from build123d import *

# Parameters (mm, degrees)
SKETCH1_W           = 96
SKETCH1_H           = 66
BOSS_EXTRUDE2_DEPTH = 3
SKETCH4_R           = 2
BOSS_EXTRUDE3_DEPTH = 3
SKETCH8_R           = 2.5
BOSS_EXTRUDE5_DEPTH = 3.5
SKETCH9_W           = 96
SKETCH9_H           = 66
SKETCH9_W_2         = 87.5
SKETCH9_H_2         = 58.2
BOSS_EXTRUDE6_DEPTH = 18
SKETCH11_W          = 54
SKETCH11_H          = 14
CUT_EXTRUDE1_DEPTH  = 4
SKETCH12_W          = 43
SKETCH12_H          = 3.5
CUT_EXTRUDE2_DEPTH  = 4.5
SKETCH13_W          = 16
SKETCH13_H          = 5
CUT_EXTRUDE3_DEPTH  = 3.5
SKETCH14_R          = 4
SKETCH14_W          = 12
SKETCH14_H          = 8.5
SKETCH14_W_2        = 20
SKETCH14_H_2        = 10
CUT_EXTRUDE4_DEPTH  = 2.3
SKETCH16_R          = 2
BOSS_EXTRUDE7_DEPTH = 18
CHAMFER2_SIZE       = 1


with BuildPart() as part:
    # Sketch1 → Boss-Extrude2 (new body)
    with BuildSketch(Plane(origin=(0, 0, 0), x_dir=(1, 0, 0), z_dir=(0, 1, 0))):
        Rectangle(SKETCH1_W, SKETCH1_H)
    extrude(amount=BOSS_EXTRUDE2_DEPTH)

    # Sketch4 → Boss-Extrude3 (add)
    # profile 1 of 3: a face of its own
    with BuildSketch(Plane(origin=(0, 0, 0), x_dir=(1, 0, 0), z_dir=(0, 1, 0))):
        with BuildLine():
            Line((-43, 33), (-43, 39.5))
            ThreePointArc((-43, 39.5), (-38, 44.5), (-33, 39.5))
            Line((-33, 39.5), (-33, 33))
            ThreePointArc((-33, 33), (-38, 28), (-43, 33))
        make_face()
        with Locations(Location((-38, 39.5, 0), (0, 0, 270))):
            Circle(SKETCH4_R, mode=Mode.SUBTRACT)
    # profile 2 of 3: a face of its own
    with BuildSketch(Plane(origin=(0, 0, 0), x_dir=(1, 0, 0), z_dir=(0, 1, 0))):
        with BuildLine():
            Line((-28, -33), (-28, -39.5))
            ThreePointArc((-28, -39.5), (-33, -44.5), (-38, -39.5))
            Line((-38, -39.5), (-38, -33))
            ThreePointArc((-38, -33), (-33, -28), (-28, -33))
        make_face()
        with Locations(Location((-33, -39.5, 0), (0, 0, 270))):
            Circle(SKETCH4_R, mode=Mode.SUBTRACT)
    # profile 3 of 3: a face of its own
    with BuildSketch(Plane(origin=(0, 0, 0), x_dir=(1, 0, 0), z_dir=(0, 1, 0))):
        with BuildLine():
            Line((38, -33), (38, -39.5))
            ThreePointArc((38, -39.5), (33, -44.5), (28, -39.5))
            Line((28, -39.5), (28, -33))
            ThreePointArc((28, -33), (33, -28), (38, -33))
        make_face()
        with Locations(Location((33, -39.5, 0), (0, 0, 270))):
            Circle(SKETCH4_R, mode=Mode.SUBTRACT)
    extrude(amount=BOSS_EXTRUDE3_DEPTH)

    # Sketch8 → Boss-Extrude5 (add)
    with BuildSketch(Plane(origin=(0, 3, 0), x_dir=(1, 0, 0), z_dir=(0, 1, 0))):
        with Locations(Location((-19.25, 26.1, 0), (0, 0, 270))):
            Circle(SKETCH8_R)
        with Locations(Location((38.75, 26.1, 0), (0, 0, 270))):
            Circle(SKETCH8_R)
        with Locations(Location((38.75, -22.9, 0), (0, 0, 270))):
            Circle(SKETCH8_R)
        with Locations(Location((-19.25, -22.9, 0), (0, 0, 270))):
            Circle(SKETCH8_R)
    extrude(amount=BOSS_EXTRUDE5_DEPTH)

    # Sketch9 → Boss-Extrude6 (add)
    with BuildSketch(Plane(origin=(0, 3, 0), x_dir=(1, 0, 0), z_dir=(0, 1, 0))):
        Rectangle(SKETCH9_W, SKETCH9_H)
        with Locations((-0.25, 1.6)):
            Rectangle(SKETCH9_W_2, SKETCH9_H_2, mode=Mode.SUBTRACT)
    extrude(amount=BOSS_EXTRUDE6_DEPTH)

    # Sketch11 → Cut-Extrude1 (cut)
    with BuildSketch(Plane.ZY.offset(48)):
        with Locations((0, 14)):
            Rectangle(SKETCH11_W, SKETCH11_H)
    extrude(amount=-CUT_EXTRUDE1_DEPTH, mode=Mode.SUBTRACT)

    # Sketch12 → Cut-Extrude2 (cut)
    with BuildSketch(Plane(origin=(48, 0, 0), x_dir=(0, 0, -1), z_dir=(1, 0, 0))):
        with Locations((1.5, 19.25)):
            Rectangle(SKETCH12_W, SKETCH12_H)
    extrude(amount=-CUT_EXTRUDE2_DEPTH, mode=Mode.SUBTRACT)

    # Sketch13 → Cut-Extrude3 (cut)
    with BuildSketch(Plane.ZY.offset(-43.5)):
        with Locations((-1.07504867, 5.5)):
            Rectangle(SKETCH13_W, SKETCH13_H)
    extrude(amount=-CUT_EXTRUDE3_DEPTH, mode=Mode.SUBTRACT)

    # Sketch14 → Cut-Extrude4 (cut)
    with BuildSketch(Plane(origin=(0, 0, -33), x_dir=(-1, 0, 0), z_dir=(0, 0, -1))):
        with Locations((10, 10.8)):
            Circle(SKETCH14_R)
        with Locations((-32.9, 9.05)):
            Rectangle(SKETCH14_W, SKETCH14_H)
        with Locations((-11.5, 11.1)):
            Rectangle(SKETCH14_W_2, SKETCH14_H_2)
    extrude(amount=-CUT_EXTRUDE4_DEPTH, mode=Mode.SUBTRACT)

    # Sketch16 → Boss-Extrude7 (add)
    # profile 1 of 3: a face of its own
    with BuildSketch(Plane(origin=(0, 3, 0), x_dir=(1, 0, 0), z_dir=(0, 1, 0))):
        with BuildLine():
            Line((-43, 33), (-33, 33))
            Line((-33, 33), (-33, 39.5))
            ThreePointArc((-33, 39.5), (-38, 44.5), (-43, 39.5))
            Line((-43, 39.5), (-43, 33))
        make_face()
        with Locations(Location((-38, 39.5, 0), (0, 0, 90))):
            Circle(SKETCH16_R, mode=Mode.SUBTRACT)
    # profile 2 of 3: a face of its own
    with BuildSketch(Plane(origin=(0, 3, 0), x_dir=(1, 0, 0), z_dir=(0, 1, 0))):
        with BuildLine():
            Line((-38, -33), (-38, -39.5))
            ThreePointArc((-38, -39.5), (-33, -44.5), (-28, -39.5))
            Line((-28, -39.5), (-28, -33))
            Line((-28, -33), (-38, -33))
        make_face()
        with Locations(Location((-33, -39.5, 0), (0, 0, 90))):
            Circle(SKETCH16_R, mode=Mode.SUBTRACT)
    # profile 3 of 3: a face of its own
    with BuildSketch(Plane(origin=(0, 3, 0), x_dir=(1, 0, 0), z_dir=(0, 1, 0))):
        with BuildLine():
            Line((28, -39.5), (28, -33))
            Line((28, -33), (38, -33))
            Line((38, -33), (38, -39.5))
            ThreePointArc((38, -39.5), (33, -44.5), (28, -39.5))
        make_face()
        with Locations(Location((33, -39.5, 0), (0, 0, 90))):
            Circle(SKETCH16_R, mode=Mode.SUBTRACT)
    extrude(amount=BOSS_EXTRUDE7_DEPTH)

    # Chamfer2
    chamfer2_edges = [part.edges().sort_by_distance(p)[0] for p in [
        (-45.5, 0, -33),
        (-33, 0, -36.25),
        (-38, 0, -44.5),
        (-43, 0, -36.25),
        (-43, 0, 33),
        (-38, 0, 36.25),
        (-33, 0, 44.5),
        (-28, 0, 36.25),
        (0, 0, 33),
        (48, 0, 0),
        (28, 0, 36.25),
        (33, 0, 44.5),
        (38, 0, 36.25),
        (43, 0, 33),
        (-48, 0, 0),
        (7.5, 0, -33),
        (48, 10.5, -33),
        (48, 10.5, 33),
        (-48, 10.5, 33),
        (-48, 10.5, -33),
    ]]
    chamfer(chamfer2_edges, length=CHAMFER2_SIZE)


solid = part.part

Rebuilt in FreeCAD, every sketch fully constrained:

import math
import FreeCAD as App
import Part
import Sketcher
from FreeCAD import Vector
Q = App.Units.Quantity


def edges_at(feature, points):
    """Names of the edges that pass closest to the given points."""
    edges = feature.Shape.Edges
    near = lambda p: min(range(len(edges)), key=lambda i: edges[i].distToShape(Part.Vertex(*p))[0])
    return sorted({f"Edge{near(p) + 1}" for p in points})

doc = App.newDocument("Part")
body = doc.addObject("PartDesign::Body", "Body")

sketch1 = body.newObject("Sketcher::SketchObject", "Sketch")
sketch1.AttachmentSupport = (doc.getObject("XZ_Plane"), [""])
sketch1.MapMode = "FlatFace"
sketch1.addGeometry([
    Part.LineSegment(Vector(-48, -33, 0), Vector(-48, 33, 0)),
    Part.LineSegment(Vector(-48, 33, 0), Vector(48, 33, 0)),
    Part.LineSegment(Vector(48, 33, 0), Vector(48, -33, 0)),
    Part.LineSegment(Vector(48, -33, 0), Vector(-48, -33, 0)),
], False)
sketch1.addConstraint([
    Sketcher.Constraint("Coincident", 0, 2, 1, 1),
    Sketcher.Constraint("Coincident", 1, 2, 2, 1),
    Sketcher.Constraint("Coincident", 2, 2, 3, 1),
    Sketcher.Constraint("Coincident", 3, 2, 0, 1),
    Sketcher.Constraint("Vertical", 0),
    Sketcher.Constraint("Horizontal", 1),
    Sketcher.Constraint("Vertical", 2),
    Sketcher.Constraint("Horizontal", 3),
    Sketcher.Constraint("Symmetric", 0, 2, 2, 2, -1, 1),
    Sketcher.Constraint("DistanceX", 1, 1, 1, 2, Q("96 mm")),
    Sketcher.Constraint("DistanceY", 0, 1, 0, 2, Q("66 mm")),
])
pad1 = body.newObject("PartDesign::Pad", "Pad")
pad1.Profile = sketch1
pad1.Length = 3
pad1.Reversed = True

sketch2 = body.newObject("Sketcher::SketchObject", "Sketch001")
sketch2.AttachmentSupport = (doc.getObject("XZ_Plane"), [""])
sketch2.MapMode = "FlatFace"
sketch2.addGeometry([
    Part.LineSegment(Vector(-43, -39.5, 0), Vector(-43, -33, 0)),
    Part.ArcOfCircle(Part.Circle(Vector(-38, -33, 0), Vector(0, 0, 1), 5), math.radians(0), math.radians(180)),
    Part.LineSegment(Vector(-33, -33, 0), Vector(-33, -39.5, 0)),
    Part.ArcOfCircle(Part.Circle(Vector(-38, -39.5, 0), Vector(0, 0, 1), 5), math.radians(180), math.radians(360)),
    Part.Circle(Vector(-38, -39.5, 0), Vector(0, 0, 1), 2),
    Part.LineSegment(Vector(-28, 39.5, 0), Vector(-28, 33, 0)),
    Part.ArcOfCircle(Part.Circle(Vector(-33, 33, 0), Vector(0, 0, 1), 5), math.radians(180), math.radians(360)),
    Part.LineSegment(Vector(-38, 33, 0), Vector(-38, 39.5, 0)),
    Part.ArcOfCircle(Part.Circle(Vector(-33, 39.5, 0), Vector(0, 0, 1), 5), math.radians(0), math.radians(180)),
    Part.Circle(Vector(-33, 39.5, 0), Vector(0, 0, 1), 2),
    Part.LineSegment(Vector(38, 39.5, 0), Vector(38, 33, 0)),
    Part.ArcOfCircle(Part.Circle(Vector(33, 33, 0), Vector(0, 0, 1), 5), math.radians(180), math.radians(360)),
    Part.LineSegment(Vector(28, 33, 0), Vector(28, 39.5, 0)),
    Part.ArcOfCircle(Part.Circle(Vector(33, 39.5, 0), Vector(0, 0, 1), 5), math.radians(0), math.radians(180)),
    Part.Circle(Vector(33, 39.5, 0), Vector(0, 0, 1), 2),
], False)
sketch2.addConstraint([
    Sketcher.Constraint("Tangent", 0, 2, 1, 2),
    Sketcher.Constraint("Tangent", 1, 1, 2, 1),
    Sketcher.Constraint("Tangent", 2, 2, 3, 2),
    Sketcher.Constraint("Tangent", 3, 1, 0, 1),
    Sketcher.Constraint("Tangent", 5, 2, 6, 2),
    Sketcher.Constraint("Tangent", 6, 1, 7, 1),
    Sketcher.Constraint("Tangent", 7, 2, 8, 2),
    Sketcher.Constraint("Tangent", 8, 1, 5, 1),
    Sketcher.Constraint("Tangent", 10, 2, 11, 2),
    Sketcher.Constraint("Tangent", 11, 1, 12, 1),
    Sketcher.Constraint("Tangent", 12, 2, 13, 2),
    Sketcher.Constraint("Tangent", 13, 1, 10, 1),
    Sketcher.Constraint("Vertical", 0),
    Sketcher.Constraint("Vertical", 2),
    Sketcher.Constraint("Vertical", 5),
    Sketcher.Constraint("Vertical", 7),
    Sketcher.Constraint("Vertical", 10),
    Sketcher.Constraint("Vertical", 12),
    Sketcher.Constraint("Coincident", 4, 3, 3, 3),
    Sketcher.Constraint("Coincident", 9, 3, 8, 3),
    Sketcher.Constraint("Coincident", 14, 3, 13, 3),
    Sketcher.Constraint("Equal", 3, 6),
    Sketcher.Constraint("Equal", 4, 9),
    Sketcher.Constraint("Equal", 8, 11),
    Sketcher.Constraint("Equal", 9, 14),
    Sketcher.Constraint("Symmetric", 6, 3, 11, 3, -2),
    Sketcher.Constraint("Horizontal", 9, 3, 13, 3),
    Sketcher.Constraint("Vertical", 9, 3, 1, 1),
    Sketcher.Constraint("Equal", 2, 5),
    Sketcher.Constraint("Diameter", 4, Q("4 mm")),
    Sketcher.Constraint("Radius", 1, Q("5 mm")),
    Sketcher.Constraint("DistanceY", 0, 1, 0, 2, Q("6.5 mm")),
    Sketcher.Constraint("DistanceX", 1, 3, -1, 1, Q("38 mm")),
    Sketcher.Constraint("DistanceY", 1, 3, -1, 1, Q("33 mm")),
    Sketcher.Constraint("DistanceY", -1, 1, 6, 3, Q("33 mm")),
])
pad2 = body.newObject("PartDesign::Pad", "Pad001")
pad2.Profile = sketch2
pad2.Length = 3
pad2.Reversed = True

sketch3 = body.newObject("Sketcher::SketchObject", "Sketch002")
sketch3.AttachmentSupport = (doc.getObject("XZ_Plane"), [""])
sketch3.MapMode = "FlatFace"
sketch3.AttachmentOffset = App.Placement(Vector(0, 0, -3), App.Rotation())
sketch3.addGeometry([
    Part.Circle(Vector(-19.25, -26.1, 0), Vector(0, 0, 1), 2.5),
    Part.Circle(Vector(38.75, -26.1, 0), Vector(0, 0, 1), 2.5),
    Part.Circle(Vector(38.75, 22.9, 0), Vector(0, 0, 1), 2.5),
    Part.Circle(Vector(-19.25, 22.9, 0), Vector(0, 0, 1), 2.5),
], False)
sketch3.addConstraint([
    Sketcher.Constraint("Equal", 0, 1),
    Sketcher.Constraint("Equal", 1, 2),
    Sketcher.Constraint("Equal", 2, 3),
    Sketcher.Constraint("Horizontal", 0, 3, 1, 3),
    Sketcher.Constraint("Horizontal", 2, 3, 3, 3),
    Sketcher.Constraint("Vertical", 1, 3, 2, 3),
    Sketcher.Constraint("Vertical", 0, 3, 3, 3),
    Sketcher.Constraint("Diameter", 0, Q("5 mm")),
    Sketcher.Constraint("DistanceX", 0, 3, 1, 3, Q("58 mm")),
    Sketcher.Constraint("DistanceY", 1, 3, 2, 3, Q("49 mm")),
    Sketcher.Constraint("DistanceY", 0, 3, -1, 1, Q("26.1 mm")),
    Sketcher.Constraint("DistanceX", 0, 3, -1, 1, Q("19.25 mm")),
])
pad3 = body.newObject("PartDesign::Pad", "Pad002")
pad3.Profile = sketch3
pad3.Length = 3.5
pad3.Reversed = True

sketch4 = body.newObject("Sketcher::SketchObject", "Sketch003")
sketch4.AttachmentSupport = (doc.getObject("XZ_Plane"), [""])
sketch4.MapMode = "FlatFace"
sketch4.AttachmentOffset = App.Placement(Vector(0, 0, -3), App.Rotation())
sketch4.addGeometry([
    Part.LineSegment(Vector(-48, -33, 0), Vector(-48, 33, 0)),
    Part.LineSegment(Vector(-48, 33, 0), Vector(48, 33, 0)),
    Part.LineSegment(Vector(48, 33, 0), Vector(48, -33, 0)),
    Part.LineSegment(Vector(48, -33, 0), Vector(-48, -33, 0)),
    Part.LineSegment(Vector(43.5, 27.5, 0), Vector(-44, 27.5, 0)),
    Part.LineSegment(Vector(-44, 27.5, 0), Vector(-44, -30.7, 0)),
    Part.LineSegment(Vector(-44, -30.7, 0), Vector(43.5, -30.7, 0)),
    Part.LineSegment(Vector(43.5, -30.7, 0), Vector(43.5, 27.5, 0)),
], False)
sketch4.addConstraint([
    Sketcher.Constraint("Coincident", 0, 2, 1, 1),
    Sketcher.Constraint("Coincident", 1, 2, 2, 1),
    Sketcher.Constraint("Coincident", 2, 2, 3, 1),
    Sketcher.Constraint("Coincident", 3, 2, 0, 1),
    Sketcher.Constraint("Coincident", 4, 2, 5, 1),
    Sketcher.Constraint("Coincident", 5, 2, 6, 1),
    Sketcher.Constraint("Coincident", 6, 2, 7, 1),
    Sketcher.Constraint("Coincident", 7, 2, 4, 1),
    Sketcher.Constraint("Vertical", 0),
    Sketcher.Constraint("Horizontal", 1),
    Sketcher.Constraint("Vertical", 2),
    Sketcher.Constraint("Horizontal", 3),
    Sketcher.Constraint("Horizontal", 4),
    Sketcher.Constraint("Vertical", 5),
    Sketcher.Constraint("Horizontal", 6),
    Sketcher.Constraint("Vertical", 7),
    Sketcher.Constraint("Symmetric", 0, 2, 2, 2, -1, 1),
    Sketcher.Constraint("DistanceX", 1, 1, 1, 2, Q("96 mm")),
    Sketcher.Constraint("DistanceY", 0, 1, 0, 2, Q("66 mm")),
    Sketcher.Constraint("DistanceX", 4, 2, 4, 1, Q("87.5 mm")),
    Sketcher.Constraint("DistanceY", 5, 2, 5, 1, Q("58.2 mm")),
    Sketcher.Constraint("DistanceX", 4, 2, -1, 1, Q("44 mm")),
    Sketcher.Constraint("DistanceY", -1, 1, 4, 2, Q("27.5 mm")),
])
pad4 = body.newObject("PartDesign::Pad", "Pad003")
pad4.Profile = sketch4
pad4.Length = 18
pad4.Reversed = True

sketch5 = body.newObject("Sketcher::SketchObject", "Sketch004")
sketch5.AttachmentSupport = (doc.getObject("YZ_Plane"), [""])
sketch5.MapMode = "FlatFace"
sketch5.AttachmentOffset = App.Placement(Vector(0, 0, -48), App.Rotation())
sketch5.addGeometry([
    Part.LineSegment(Vector(21, -27, 0), Vector(7, -27, 0)),
    Part.LineSegment(Vector(7, -27, 0), Vector(7, 27, 0)),
    Part.LineSegment(Vector(7, 27, 0), Vector(21, 27, 0)),
    Part.LineSegment(Vector(21, 27, 0), Vector(21, -27, 0)),
], False)
sketch5.addConstraint([
    Sketcher.Constraint("Coincident", 0, 2, 1, 1),
    Sketcher.Constraint("Coincident", 1, 2, 2, 1),
    Sketcher.Constraint("Coincident", 2, 2, 3, 1),
    Sketcher.Constraint("Coincident", 3, 2, 0, 1),
    Sketcher.Constraint("Horizontal", 0),
    Sketcher.Constraint("Vertical", 1),
    Sketcher.Constraint("Horizontal", 2),
    Sketcher.Constraint("Vertical", 3),
    Sketcher.Constraint("DistanceX", 0, 2, 0, 1, Q("14 mm")),
    Sketcher.Constraint("DistanceY", 1, 1, 1, 2, Q("54 mm")),
    Sketcher.Constraint("DistanceX", -1, 1, 0, 2, Q("7 mm")),
    Sketcher.Constraint("DistanceY", 0, 2, -1, 1, Q("27 mm")),
])
pocket1 = body.newObject("PartDesign::Pocket", "Pocket")
pocket1.Profile = sketch5
pocket1.Length = 4
pocket1.Reversed = True

sketch6 = body.newObject("Sketcher::SketchObject", "Sketch005")
sketch6.AttachmentSupport = (doc.getObject("YZ_Plane"), [""])
sketch6.MapMode = "FlatFace"
sketch6.AttachmentOffset = App.Placement(Vector(0, 0, 48), App.Rotation())
sketch6.addGeometry([
    Part.LineSegment(Vector(21, 20, 0), Vector(17.5, 20, 0)),
    Part.LineSegment(Vector(17.5, 20, 0), Vector(17.5, -23, 0)),
    Part.LineSegment(Vector(17.5, -23, 0), Vector(21, -23, 0)),
    Part.LineSegment(Vector(21, -23, 0), Vector(21, 20, 0)),
], False)
sketch6.addConstraint([
    Sketcher.Constraint("Coincident", 0, 2, 1, 1),
    Sketcher.Constraint("Coincident", 1, 2, 2, 1),
    Sketcher.Constraint("Coincident", 2, 2, 3, 1),
    Sketcher.Constraint("Coincident", 3, 2, 0, 1),
    Sketcher.Constraint("Horizontal", 0),
    Sketcher.Constraint("Vertical", 1),
    Sketcher.Constraint("Horizontal", 2),
    Sketcher.Constraint("Vertical", 3),
    Sketcher.Constraint("DistanceY", 1, 2, 1, 1, Q("43 mm")),
    Sketcher.Constraint("DistanceX", 0, 2, 0, 1, Q("3.5 mm")),
    Sketcher.Constraint("DistanceY", -1, 1, 0, 2, Q("20 mm")),
    Sketcher.Constraint("DistanceX", -1, 1, 2, 2, Q("21 mm")),
])
pocket2 = body.newObject("PartDesign::Pocket", "Pocket001")
pocket2.Profile = sketch6
pocket2.Length = 4.5

sketch7 = body.newObject("Sketcher::SketchObject", "Sketch006")
sketch7.AttachmentSupport = (doc.getObject("YZ_Plane"), [""])
sketch7.MapMode = "FlatFace"
sketch7.AttachmentOffset = App.Placement(Vector(0, 0, 43.5), App.Rotation())
sketch7.addGeometry([
    Part.LineSegment(Vector(8, -9.075049, 0), Vector(3, -9.075049, 0)),
    Part.LineSegment(Vector(3, -9.075049, 0), Vector(3, 6.924951, 0)),
    Part.LineSegment(Vector(3, 6.924951, 0), Vector(8, 6.924951, 0)),
    Part.LineSegment(Vector(8, 6.924951, 0), Vector(8, -9.075049, 0)),
], False)
sketch7.addConstraint([
    Sketcher.Constraint("Coincident", 0, 2, 1, 1),
    Sketcher.Constraint("Coincident", 1, 2, 2, 1),
    Sketcher.Constraint("Coincident", 2, 2, 3, 1),
    Sketcher.Constraint("Coincident", 3, 2, 0, 1),
    Sketcher.Constraint("Horizontal", 0),
    Sketcher.Constraint("Vertical", 1),
    Sketcher.Constraint("Horizontal", 2),
    Sketcher.Constraint("Vertical", 3),
    Sketcher.Constraint("DistanceX", 0, 2, 0, 1, Q("5 mm")),
    Sketcher.Constraint("DistanceY", 1, 1, 1, 2, Q("16 mm")),
    Sketcher.Constraint("DistanceX", -1, 1, 0, 2, Q("3 mm")),
    Sketcher.Constraint("DistanceY", 0, 2, -1, 1, Q("9.075049 mm")),
])
pocket3 = body.newObject("PartDesign::Pocket", "Pocket002")
pocket3.Profile = sketch7
pocket3.Length = 3.5
pocket3.Reversed = True

sketch8 = body.newObject("Sketcher::SketchObject", "Sketch007")
sketch8.AttachmentSupport = (doc.getObject("XY_Plane"), [""])
sketch8.MapMode = "FlatFace"
sketch8.AttachmentOffset = App.Placement(Vector(0, 0, -33), App.Rotation())
sketch8.addGeometry([
    Part.Circle(Vector(-10, 10.8, 0), Vector(0, 0, 1), 4),
    Part.LineSegment(Vector(38.9, 13.3, 0), Vector(38.9, 4.8, 0)),
    Part.LineSegment(Vector(38.9, 4.8, 0), Vector(26.9, 4.8, 0)),
    Part.LineSegment(Vector(26.9, 4.8, 0), Vector(26.9, 13.3, 0)),
    Part.LineSegment(Vector(26.9, 13.3, 0), Vector(38.9, 13.3, 0)),
    Part.LineSegment(Vector(21.5, 16.1, 0), Vector(21.5, 6.1, 0)),
    Part.LineSegment(Vector(21.5, 6.1, 0), Vector(1.5, 6.1, 0)),
    Part.LineSegment(Vector(1.5, 6.1, 0), Vector(1.5, 16.1, 0)),
    Part.LineSegment(Vector(1.5, 16.1, 0), Vector(21.5, 16.1, 0)),
], False)
sketch8.addConstraint([
    Sketcher.Constraint("Coincident", 1, 2, 2, 1),
    Sketcher.Constraint("Coincident", 2, 2, 3, 1),
    Sketcher.Constraint("Coincident", 3, 2, 4, 1),
    Sketcher.Constraint("Coincident", 4, 2, 1, 1),
    Sketcher.Constraint("Coincident", 5, 2, 6, 1),
    Sketcher.Constraint("Coincident", 6, 2, 7, 1),
    Sketcher.Constraint("Coincident", 7, 2, 8, 1),
    Sketcher.Constraint("Coincident", 8, 2, 5, 1),
    Sketcher.Constraint("Vertical", 1),
    Sketcher.Constraint("Horizontal", 2),
    Sketcher.Constraint("Vertical", 3),
    Sketcher.Constraint("Horizontal", 4),
    Sketcher.Constraint("Vertical", 5),
    Sketcher.Constraint("Horizontal", 6),
    Sketcher.Constraint("Vertical", 7),
    Sketcher.Constraint("Horizontal", 8),
    Sketcher.Constraint("Diameter", 0, Q("8 mm")),
    Sketcher.Constraint("DistanceX", 2, 2, 2, 1, Q("12 mm")),
    Sketcher.Constraint("DistanceX", 6, 2, 6, 1, Q("20 mm")),
    Sketcher.Constraint("DistanceY", 5, 2, 5, 1, Q("10 mm")),
    Sketcher.Constraint("DistanceY", 1, 2, 1, 1, Q("8.5 mm")),
    Sketcher.Constraint("DistanceX", 0, 3, -1, 1, Q("10 mm")),
    Sketcher.Constraint("DistanceY", 1, 2, 0, 3, Q("6 mm")),
    Sketcher.Constraint("DistanceY", -1, 1, 0, 3, Q("10.8 mm")),
    Sketcher.Constraint("DistanceX", -1, 1, 1, 2, Q("38.9 mm")),
    Sketcher.Constraint("DistanceX", -1, 1, 5, 2, Q("21.5 mm")),
    Sketcher.Constraint("DistanceY", -1, 1, 5, 2, Q("6.1 mm")),
])
pocket4 = body.newObject("PartDesign::Pocket", "Pocket003")
pocket4.Profile = sketch8
pocket4.Length = 2.3
pocket4.Reversed = True

sketch9 = body.newObject("Sketcher::SketchObject", "Sketch008")
sketch9.AttachmentSupport = (doc.getObject("XZ_Plane"), [""])
sketch9.MapMode = "FlatFace"
sketch9.AttachmentOffset = App.Placement(Vector(0, 0, -3), App.Rotation())
sketch9.addGeometry([
    Part.LineSegment(Vector(-43, -33, 0), Vector(-33, -33, 0)),
    Part.LineSegment(Vector(-33, -33, 0), Vector(-33, -39.5, 0)),
    Part.ArcOfCircle(Part.Circle(Vector(-38, -39.5, 0), Vector(0, 0, 1), 5), math.radians(180), math.radians(360)),
    Part.LineSegment(Vector(-43, -39.5, 0), Vector(-43, -33, 0)),
    Part.Circle(Vector(-38, -39.5, 0), Vector(0, 0, 1), 2),
    Part.LineSegment(Vector(-38, 33, 0), Vector(-38, 39.5, 0)),
    Part.ArcOfCircle(Part.Circle(Vector(-33, 39.5, 0), Vector(0, 0, 1), 5), math.radians(0), math.radians(180)),
    Part.LineSegment(Vector(-28, 39.5, 0), Vector(-28, 33, 0)),
    Part.LineSegment(Vector(-28, 33, 0), Vector(-38, 33, 0)),
    Part.Circle(Vector(-33, 39.5, 0), Vector(0, 0, 1), 2),
    Part.LineSegment(Vector(28, 33, 0), Vector(28, 39.5, 0)),
    Part.ArcOfCircle(Part.Circle(Vector(33, 39.5, 0), Vector(0, 0, 1), 5), math.radians(0), math.radians(180)),
    Part.LineSegment(Vector(38, 39.5, 0), Vector(38, 33, 0)),
    Part.LineSegment(Vector(38, 33, 0), Vector(28, 33, 0)),
    Part.Circle(Vector(33, 39.5, 0), Vector(0, 0, 1), 2),
], False)
sketch9.addConstraint([
    Sketcher.Constraint("Coincident", 0, 2, 1, 1),
    Sketcher.Constraint("Tangent", 1, 2, 2, 2),
    Sketcher.Constraint("Tangent", 2, 1, 3, 1),
    Sketcher.Constraint("Coincident", 3, 2, 0, 1),
    Sketcher.Constraint("Tangent", 5, 2, 6, 2),
    Sketcher.Constraint("Tangent", 6, 1, 7, 1),
    Sketcher.Constraint("Coincident", 7, 2, 8, 1),
    Sketcher.Constraint("Coincident", 8, 2, 5, 1),
    Sketcher.Constraint("Tangent", 10, 2, 11, 2),
    Sketcher.Constraint("Tangent", 11, 1, 12, 1),
    Sketcher.Constraint("Coincident", 12, 2, 13, 1),
    Sketcher.Constraint("Coincident", 13, 2, 10, 1),
    Sketcher.Constraint("Horizontal", 0),
    Sketcher.Constraint("Vertical", 1),
    Sketcher.Constraint("Vertical", 3),
    Sketcher.Constraint("Vertical", 5),
    Sketcher.Constraint("Vertical", 7),
    Sketcher.Constraint("Horizontal", 8),
    Sketcher.Constraint("Vertical", 10),
    Sketcher.Constraint("Vertical", 12),
    Sketcher.Constraint("Horizontal", 13),
    Sketcher.Constraint("Coincident", 4, 3, 2, 3),
    Sketcher.Constraint("Coincident", 9, 3, 6, 3),
    Sketcher.Constraint("Coincident", 14, 3, 11, 3),
    Sketcher.Constraint("Equal", 2, 6),
    Sketcher.Constraint("Equal", 4, 9),
    Sketcher.Constraint("Equal", 6, 11),
    Sketcher.Constraint("Equal", 9, 14),
    Sketcher.Constraint("Symmetric", 6, 3, 11, 3, -2),
    Sketcher.Constraint("Horizontal", 8, 2, 12, 2),
    Sketcher.Constraint("Vertical", 9, 3, 0, 2),
    Sketcher.Constraint("Equal", 3, 5),
    Sketcher.Constraint("Diameter", 4, Q("4 mm")),
    Sketcher.Constraint("Radius", 2, Q("5 mm")),
    Sketcher.Constraint("DistanceY", 1, 2, 1, 1, Q("6.5 mm")),
    Sketcher.Constraint("DistanceX", 2, 3, -1, 1, Q("38 mm")),
    Sketcher.Constraint("DistanceY", 0, 2, -1, 1, Q("33 mm")),
    Sketcher.Constraint("DistanceY", -1, 1, 7, 2, Q("33 mm")),
])
pad5 = body.newObject("PartDesign::Pad", "Pad004")
pad5.Profile = sketch9
pad5.Length = 18
pad5.Reversed = True
doc.recompute()

chamfer = body.newObject("PartDesign::Chamfer", "Chamfer")
chamfer.Base = (pad5, edges_at(pad5, [
    (-45.5, 0, -33),
    (-33, 0, -36.25),
    (-38, 0, -44.5),
    (-43, 0, -36.25),
    (-43, 0, 33),
    (-38, 0, 36.25),
    (-33, 0, 44.5),
    (-28, 0, 36.25),
    (0, 0, 33),
    (48, 0, 0),
    (28, 0, 36.25),
    (33, 0, 44.5),
    (38, 0, 36.25),
    (43, 0, 33),
    (-48, 0, 0),
    (7.5, 0, -33),
    (48, 10.5, -33),
    (48, 10.5, 33),
    (-48, 10.5, 33),
    (-48, 10.5, -33),
]))
chamfer.Size = 1

doc.recompute()
